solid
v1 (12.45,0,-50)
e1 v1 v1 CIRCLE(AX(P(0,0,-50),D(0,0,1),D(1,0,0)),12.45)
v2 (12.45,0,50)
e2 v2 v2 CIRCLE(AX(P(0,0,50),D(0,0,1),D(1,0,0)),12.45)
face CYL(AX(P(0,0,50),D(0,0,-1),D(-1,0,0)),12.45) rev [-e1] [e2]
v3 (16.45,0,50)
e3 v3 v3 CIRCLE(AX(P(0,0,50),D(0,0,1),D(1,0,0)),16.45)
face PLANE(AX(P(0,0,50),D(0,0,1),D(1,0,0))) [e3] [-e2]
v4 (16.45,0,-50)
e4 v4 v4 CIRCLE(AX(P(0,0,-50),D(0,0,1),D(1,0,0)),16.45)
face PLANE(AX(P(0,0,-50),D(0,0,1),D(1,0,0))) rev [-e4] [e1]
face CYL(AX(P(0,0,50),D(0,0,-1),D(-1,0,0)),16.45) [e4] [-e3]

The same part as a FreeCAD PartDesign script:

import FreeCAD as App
import Part
import Sketcher
from FreeCAD import Vector

doc = App.newDocument("Part")
body = doc.addObject("PartDesign::Body", "Body")

# Sketch on XY plane
sketch1 = body.newObject("Sketcher::SketchObject", "Sketch")
sketch1.AttachmentSupport = (doc.getObject("XY_Plane"), [""])
sketch1.MapMode = "FlatFace"
sketch1.addGeometry(Part.Circle(Vector(0, 0, 0), Vector(0, 0, 1), 16.45), False)
sketch1.addGeometry(Part.Circle(Vector(0, 0, 0), Vector(0, 0, 1), 12.45), False)
sketch1.addConstraint(Sketcher.Constraint("Coincident", 0, 3, -1, 1))
sketch1.addConstraint(Sketcher.Constraint("Coincident", 1, 3, -1, 1))
sketch1.addConstraint(Sketcher.Constraint("Diameter", 0, 32.9))
sketch1.addConstraint(Sketcher.Constraint("Diameter", 1, 24.9))
pad1 = body.newObject("PartDesign::Pad", "Pad")
pad1.Profile = sketch1
pad1.Length = 100
pad1.Midplane = True

doc.recompute()
